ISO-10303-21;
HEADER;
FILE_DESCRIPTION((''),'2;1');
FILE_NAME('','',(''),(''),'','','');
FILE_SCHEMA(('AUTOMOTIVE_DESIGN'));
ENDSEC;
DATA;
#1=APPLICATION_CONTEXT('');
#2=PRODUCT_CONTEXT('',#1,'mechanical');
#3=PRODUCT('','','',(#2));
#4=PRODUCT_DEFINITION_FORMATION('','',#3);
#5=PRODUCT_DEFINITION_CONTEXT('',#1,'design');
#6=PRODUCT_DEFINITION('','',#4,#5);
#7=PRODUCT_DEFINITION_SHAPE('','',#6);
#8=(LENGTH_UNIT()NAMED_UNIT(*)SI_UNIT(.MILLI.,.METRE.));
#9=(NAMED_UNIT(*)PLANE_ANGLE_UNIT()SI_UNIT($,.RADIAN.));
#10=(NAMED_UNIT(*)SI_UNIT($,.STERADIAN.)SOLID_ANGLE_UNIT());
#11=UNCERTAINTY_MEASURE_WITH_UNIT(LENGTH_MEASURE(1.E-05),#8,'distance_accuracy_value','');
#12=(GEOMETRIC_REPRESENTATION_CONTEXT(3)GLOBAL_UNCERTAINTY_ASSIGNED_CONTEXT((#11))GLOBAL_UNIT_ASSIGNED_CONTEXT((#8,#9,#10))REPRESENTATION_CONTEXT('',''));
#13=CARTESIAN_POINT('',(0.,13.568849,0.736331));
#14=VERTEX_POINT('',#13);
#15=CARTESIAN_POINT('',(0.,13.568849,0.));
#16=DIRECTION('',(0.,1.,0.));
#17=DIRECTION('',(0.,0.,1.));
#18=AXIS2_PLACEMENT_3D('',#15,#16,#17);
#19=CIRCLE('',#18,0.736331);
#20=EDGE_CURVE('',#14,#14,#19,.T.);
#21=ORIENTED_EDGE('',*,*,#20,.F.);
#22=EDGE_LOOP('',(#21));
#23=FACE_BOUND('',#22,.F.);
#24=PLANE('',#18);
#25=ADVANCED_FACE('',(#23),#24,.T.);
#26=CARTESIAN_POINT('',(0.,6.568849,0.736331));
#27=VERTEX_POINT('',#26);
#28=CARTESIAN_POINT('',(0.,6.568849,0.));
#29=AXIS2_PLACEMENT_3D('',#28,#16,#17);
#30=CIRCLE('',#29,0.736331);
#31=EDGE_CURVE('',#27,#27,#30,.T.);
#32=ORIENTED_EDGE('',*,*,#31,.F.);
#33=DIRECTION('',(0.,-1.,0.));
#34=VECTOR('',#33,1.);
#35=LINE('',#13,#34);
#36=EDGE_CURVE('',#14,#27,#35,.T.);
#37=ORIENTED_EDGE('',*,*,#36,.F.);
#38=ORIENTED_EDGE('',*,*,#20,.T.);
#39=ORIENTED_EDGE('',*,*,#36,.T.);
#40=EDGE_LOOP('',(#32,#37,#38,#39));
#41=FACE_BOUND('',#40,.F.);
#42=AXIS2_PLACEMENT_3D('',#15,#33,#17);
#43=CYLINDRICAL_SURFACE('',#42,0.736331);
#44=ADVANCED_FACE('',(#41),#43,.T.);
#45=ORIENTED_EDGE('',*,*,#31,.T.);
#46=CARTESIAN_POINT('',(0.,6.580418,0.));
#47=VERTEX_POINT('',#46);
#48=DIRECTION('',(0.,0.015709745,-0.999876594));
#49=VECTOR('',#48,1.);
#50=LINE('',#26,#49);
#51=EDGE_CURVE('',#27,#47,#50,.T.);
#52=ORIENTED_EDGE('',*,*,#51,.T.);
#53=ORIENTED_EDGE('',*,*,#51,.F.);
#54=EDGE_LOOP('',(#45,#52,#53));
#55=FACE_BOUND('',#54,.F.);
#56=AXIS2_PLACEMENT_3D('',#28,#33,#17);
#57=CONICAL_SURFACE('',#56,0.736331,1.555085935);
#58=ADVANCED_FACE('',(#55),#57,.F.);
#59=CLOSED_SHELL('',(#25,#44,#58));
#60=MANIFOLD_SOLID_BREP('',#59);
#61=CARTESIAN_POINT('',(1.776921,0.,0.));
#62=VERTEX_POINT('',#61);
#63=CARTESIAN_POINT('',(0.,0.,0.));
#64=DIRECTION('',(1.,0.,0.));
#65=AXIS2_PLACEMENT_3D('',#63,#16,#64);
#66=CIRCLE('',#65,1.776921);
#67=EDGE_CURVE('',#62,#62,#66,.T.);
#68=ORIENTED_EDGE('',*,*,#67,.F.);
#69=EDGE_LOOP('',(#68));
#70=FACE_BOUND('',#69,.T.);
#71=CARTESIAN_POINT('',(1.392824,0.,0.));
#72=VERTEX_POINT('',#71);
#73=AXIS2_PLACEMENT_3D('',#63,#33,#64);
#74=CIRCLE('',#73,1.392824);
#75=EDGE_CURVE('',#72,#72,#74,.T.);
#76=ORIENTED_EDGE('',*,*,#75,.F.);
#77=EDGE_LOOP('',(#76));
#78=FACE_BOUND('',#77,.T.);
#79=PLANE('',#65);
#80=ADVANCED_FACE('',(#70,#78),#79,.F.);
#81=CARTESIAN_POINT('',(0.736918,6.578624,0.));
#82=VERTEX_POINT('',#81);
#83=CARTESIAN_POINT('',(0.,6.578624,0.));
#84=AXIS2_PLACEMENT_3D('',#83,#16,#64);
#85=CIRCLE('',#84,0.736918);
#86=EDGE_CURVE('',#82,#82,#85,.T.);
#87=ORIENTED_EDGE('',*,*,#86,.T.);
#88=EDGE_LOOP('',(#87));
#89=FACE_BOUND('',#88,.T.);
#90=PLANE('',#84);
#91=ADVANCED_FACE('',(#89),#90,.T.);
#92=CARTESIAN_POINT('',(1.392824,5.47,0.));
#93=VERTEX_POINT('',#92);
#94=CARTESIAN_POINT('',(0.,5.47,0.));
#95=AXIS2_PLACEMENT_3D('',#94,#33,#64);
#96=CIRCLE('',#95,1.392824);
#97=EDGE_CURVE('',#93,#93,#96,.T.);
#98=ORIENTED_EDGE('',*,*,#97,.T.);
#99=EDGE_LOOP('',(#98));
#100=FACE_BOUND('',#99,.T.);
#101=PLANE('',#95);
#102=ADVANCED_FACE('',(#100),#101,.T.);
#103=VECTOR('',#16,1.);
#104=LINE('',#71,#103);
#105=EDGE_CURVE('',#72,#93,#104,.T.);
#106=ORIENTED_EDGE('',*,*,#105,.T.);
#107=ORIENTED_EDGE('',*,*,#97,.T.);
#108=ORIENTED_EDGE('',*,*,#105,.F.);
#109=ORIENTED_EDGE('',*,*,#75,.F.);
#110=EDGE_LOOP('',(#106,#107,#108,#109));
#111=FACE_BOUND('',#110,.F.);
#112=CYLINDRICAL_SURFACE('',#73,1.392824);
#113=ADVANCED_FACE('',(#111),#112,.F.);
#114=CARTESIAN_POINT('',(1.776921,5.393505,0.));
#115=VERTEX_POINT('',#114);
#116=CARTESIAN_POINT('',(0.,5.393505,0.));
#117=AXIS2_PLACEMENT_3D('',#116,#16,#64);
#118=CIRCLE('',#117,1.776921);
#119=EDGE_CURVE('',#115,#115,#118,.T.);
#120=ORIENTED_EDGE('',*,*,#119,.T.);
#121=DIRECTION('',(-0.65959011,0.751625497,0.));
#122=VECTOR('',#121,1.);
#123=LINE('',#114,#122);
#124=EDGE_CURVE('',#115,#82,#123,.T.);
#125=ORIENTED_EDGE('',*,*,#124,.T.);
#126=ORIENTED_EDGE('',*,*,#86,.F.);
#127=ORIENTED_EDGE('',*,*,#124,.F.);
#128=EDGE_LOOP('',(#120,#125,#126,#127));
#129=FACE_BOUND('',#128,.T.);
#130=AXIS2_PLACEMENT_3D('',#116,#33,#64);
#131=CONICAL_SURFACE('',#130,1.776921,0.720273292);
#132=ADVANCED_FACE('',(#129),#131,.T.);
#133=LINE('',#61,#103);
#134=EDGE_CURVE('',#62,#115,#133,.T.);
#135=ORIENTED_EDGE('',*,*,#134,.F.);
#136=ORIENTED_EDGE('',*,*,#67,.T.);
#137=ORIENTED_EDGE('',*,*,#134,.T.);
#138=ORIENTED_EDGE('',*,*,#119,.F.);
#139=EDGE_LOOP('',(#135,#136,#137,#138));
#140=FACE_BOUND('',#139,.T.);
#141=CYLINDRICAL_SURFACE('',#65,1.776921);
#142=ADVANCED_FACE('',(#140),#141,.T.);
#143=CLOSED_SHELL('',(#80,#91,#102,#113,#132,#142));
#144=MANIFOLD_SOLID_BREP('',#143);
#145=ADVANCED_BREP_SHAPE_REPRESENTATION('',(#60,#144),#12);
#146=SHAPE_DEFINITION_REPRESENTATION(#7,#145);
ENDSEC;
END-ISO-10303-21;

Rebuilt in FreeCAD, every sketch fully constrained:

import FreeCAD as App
import Part
import Sketcher

V = App.Vector


def add_polygon(sketch, points):
    """Adds a closed chain of lines whose ends are joined by coincident constraints."""
    first, n = sketch.GeometryCount, len(points)
    for a, b in zip(points, points[1:] + points[:1]):
        sketch.addGeometry(Part.LineSegment(App.Vector(*a, 0), App.Vector(*b, 0)), False)
    for i in range(n):
        sketch.addConstraint(Sketcher.Constraint("Coincident", first + i, 2, first + (i + 1) % n, 1))

doc = App.newDocument("Part")
body = doc.addObject("PartDesign::Body", "Body")

# Sketch on XY plane
sketch1 = body.newObject("Sketcher::SketchObject", "Sketch")
sketch1.AttachmentSupport = (doc.getObject("XY_Plane"), [""])
sketch1.MapMode = "FlatFace"
add_polygon(sketch1, [(0, 6.578624), (0, 0), (1.776921, 0), (1.776921, 5.393505), (0.736918, 6.578624)])  # lines 0-4
sketch1.addConstraint([
    Sketcher.Constraint("Vertical", 0),
    Sketcher.Constraint("Horizontal", 1),
    Sketcher.Constraint("Vertical", 2),
    Sketcher.Constraint("Horizontal", 4),
    Sketcher.Constraint("Coincident", 0, 2, -1, 1),
    Sketcher.Constraint("DistanceX", 1, 1, 1, 2, 1.776921),
    Sketcher.Constraint("Distance", 3, 1.576741),
    Sketcher.Constraint("DistanceX", 4, 2, 4, 1, 0.736918),
    Sketcher.Constraint("DistanceY", 0, 2, 0, 1, 6.578624),
])
revolution = body.newObject("PartDesign::Revolution", "Revolution")
revolution.Profile = sketch1
revolution.ReferenceAxis = (sketch1, ["V_Axis"])
revolution.Angle = 360

# Sketch on XZ plane
sketch2 = body.newObject("Sketcher::SketchObject", "Sketch001")
sketch2.AttachmentSupport = (doc.getObject("XZ_Plane"), [""])
sketch2.MapMode = "FlatFace"
sketch2.addGeometry(Part.Circle(V(0, 0, 0), V(0, 0, 1), 1.392824), False)
sketch2.addConstraint([
    Sketcher.Constraint("Coincident", 0, 3, -1, 1),
    Sketcher.Constraint("Diameter", 0, 2.785648),
])
pocket1 = body.newObject("PartDesign::Pocket", "Pocket")
pocket1.Profile = sketch2
pocket1.Length = 5.47
body2 = doc.addObject("PartDesign::Body", "Body001")

# Sketch on YZ plane
sketch3 = body2.newObject("Sketcher::SketchObject", "Sketch002")
sketch3.AttachmentSupport = (doc.getObject("YZ_Plane001"), [""])
sketch3.MapMode = "FlatFace"
add_polygon(sketch3, [(6.568849, 0.736331), (6.580418, 0), (13.568849, 0), (13.568849, 0.736331)])  # lines 0-3
sketch3.addConstraint([
    Sketcher.Constraint("Horizontal", 1),
    Sketcher.Constraint("Vertical", 2),
    Sketcher.Constraint("Horizontal", 3),
    Sketcher.Constraint("PointOnObject", 0, 2, -1),
    Sketcher.Constraint("DistanceX", 3, 2, 3, 1, 7.0),
    Sketcher.Constraint("DistanceX", 1, 1, 1, 2, 6.988431),
    Sketcher.Constraint("DistanceY", 2, 1, 2, 2, 0.736331),
    Sketcher.Constraint("DistanceX", -1, 1, 1, 2, 13.568849),
])
revolution2 = body2.newObject("PartDesign::Revolution", "Revolution001")
revolution2.Profile = sketch3
revolution2.ReferenceAxis = (sketch3, ["H_Axis"])
revolution2.Angle = 360

doc.recompute()
